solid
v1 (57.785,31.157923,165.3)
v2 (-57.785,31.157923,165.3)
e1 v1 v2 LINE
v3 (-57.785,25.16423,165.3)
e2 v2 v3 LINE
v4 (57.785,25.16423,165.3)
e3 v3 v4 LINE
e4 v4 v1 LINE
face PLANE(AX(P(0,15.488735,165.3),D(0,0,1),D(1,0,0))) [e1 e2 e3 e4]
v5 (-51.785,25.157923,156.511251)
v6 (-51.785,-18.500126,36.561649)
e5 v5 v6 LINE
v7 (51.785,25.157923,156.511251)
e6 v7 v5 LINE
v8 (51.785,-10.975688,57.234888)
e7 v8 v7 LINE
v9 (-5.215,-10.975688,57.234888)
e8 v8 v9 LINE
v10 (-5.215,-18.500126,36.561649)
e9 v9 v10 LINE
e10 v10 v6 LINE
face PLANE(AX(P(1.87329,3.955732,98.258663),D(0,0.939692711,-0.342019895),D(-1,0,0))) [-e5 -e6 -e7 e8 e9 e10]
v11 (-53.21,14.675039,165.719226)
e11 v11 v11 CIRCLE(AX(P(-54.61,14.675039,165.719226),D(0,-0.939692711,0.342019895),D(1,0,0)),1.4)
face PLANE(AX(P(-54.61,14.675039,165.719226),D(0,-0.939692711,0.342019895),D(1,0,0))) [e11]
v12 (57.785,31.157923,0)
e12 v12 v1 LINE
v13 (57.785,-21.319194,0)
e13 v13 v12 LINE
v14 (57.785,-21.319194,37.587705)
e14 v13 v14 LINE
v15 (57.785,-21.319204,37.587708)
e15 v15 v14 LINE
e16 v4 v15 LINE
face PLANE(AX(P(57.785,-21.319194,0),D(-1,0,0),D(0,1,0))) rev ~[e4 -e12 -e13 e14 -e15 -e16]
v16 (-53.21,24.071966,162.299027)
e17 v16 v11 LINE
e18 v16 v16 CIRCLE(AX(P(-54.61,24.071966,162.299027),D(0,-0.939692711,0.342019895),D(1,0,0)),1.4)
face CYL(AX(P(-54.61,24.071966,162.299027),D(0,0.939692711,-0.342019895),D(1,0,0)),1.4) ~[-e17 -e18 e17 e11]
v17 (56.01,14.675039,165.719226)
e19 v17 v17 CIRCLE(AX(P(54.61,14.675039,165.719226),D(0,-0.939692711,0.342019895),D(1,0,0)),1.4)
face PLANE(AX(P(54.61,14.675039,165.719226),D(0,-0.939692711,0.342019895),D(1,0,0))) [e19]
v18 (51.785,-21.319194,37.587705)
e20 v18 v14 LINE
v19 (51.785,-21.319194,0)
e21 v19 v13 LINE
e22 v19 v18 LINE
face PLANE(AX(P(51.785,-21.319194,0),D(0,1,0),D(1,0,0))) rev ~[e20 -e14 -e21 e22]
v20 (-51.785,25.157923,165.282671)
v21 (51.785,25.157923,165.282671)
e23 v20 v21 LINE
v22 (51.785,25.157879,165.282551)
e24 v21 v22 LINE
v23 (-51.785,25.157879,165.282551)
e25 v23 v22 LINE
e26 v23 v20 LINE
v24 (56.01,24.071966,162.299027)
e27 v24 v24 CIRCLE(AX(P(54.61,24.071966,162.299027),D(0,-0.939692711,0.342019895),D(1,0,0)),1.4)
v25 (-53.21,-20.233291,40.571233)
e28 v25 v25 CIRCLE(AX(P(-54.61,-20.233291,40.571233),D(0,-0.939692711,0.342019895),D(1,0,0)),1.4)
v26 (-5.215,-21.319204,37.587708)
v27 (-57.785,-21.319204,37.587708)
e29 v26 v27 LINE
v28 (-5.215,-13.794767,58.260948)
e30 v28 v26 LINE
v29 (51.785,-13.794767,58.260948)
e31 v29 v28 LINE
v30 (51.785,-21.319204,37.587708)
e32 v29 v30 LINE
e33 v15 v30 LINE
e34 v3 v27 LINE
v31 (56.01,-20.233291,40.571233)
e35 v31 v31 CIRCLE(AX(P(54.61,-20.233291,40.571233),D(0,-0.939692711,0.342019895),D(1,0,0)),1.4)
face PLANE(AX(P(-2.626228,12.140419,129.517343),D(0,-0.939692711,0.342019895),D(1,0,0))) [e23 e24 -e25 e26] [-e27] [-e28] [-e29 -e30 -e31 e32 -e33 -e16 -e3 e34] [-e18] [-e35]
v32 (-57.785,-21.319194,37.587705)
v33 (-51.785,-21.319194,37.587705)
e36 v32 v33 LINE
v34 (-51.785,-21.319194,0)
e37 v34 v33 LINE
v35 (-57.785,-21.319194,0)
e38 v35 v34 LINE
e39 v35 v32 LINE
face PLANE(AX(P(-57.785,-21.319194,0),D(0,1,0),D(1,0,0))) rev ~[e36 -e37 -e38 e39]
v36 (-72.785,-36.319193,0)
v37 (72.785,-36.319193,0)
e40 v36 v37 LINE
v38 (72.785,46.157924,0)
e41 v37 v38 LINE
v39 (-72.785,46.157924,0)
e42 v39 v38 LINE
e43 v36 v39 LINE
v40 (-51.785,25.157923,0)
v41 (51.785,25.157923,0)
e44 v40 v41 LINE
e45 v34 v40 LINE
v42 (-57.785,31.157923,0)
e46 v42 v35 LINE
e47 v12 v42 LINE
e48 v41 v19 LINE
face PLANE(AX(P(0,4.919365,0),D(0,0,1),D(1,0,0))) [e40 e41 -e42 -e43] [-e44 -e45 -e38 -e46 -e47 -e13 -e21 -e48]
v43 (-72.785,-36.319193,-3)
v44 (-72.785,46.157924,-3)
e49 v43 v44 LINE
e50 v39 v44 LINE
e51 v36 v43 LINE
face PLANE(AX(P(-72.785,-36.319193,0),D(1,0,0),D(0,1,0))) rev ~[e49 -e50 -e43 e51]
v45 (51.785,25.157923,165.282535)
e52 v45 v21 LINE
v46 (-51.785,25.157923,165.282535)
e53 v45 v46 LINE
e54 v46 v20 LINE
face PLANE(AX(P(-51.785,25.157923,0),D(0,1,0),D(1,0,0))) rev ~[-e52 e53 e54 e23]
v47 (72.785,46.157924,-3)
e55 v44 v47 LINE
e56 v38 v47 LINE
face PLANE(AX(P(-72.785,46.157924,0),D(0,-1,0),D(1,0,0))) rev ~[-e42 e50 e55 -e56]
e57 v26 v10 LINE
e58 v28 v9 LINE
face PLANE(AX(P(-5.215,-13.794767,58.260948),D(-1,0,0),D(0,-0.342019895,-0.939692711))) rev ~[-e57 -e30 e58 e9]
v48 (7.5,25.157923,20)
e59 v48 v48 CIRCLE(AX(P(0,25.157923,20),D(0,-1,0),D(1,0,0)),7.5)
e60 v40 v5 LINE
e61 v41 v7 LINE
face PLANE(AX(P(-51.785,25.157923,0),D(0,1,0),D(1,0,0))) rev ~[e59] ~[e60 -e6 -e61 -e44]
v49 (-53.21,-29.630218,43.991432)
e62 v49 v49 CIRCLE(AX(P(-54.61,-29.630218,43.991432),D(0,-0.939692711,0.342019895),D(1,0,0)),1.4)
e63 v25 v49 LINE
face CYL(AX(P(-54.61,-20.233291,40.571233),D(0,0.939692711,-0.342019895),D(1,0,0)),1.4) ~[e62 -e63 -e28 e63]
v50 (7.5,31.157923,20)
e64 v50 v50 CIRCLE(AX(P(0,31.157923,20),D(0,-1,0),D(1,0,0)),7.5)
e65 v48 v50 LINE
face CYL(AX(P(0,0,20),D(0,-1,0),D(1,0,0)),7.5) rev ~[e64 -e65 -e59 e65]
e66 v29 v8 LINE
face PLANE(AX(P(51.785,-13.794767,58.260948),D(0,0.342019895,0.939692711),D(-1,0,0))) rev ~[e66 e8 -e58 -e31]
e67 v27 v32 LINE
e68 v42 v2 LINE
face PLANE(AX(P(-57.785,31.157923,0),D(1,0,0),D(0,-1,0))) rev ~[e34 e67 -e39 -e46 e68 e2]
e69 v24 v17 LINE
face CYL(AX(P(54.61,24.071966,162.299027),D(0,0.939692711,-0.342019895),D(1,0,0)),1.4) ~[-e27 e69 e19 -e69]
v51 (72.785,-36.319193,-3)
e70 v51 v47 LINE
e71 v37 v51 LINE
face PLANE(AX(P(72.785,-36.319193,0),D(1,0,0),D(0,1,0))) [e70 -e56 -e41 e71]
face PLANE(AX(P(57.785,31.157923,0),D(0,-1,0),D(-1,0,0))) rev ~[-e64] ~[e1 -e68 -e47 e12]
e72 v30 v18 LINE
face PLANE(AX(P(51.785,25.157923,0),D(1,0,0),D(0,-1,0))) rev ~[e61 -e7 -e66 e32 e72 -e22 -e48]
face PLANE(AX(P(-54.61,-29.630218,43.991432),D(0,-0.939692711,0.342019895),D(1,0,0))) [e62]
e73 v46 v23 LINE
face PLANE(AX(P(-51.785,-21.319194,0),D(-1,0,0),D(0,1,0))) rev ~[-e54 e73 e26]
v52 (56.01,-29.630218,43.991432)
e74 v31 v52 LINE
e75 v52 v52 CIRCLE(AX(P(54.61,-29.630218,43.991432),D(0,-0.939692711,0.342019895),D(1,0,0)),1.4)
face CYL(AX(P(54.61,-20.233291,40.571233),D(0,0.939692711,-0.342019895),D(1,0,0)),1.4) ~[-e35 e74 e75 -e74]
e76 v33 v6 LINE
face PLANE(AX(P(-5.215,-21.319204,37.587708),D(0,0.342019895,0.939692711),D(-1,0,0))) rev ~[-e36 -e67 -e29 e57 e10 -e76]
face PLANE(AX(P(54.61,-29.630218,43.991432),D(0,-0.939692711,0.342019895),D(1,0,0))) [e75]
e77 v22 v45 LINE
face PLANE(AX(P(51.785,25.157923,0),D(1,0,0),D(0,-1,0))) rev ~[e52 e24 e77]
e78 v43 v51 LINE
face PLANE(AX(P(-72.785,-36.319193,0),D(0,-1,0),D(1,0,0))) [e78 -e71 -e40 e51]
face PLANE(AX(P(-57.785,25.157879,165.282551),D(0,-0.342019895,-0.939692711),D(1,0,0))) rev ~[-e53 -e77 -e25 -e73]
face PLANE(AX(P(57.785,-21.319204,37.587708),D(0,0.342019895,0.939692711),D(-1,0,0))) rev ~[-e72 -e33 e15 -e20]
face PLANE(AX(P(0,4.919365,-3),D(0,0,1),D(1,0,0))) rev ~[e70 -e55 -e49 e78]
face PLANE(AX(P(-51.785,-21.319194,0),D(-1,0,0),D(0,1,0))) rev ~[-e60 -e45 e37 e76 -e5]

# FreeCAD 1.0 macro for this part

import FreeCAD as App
import Part
import Sketcher

V = App.Vector
Q = App.Units.Quantity

doc = App.newDocument("Part")
body = doc.addObject("PartDesign::Body", "Body")

# Sketch on XY plane
sketch1 = body.newObject("Sketcher::SketchObject", "Sketch")
sketch1.AttachmentSupport = (doc.getObject("XY_Plane"), [""])
sketch1.MapMode = "FlatFace"
sketch1.addGeometry([
    Part.LineSegment(V(-72.785, 46.157924, 0), V(-72.785, -36.319193, 0)),
    Part.LineSegment(V(-72.785, -36.319193, 0), V(72.785, -36.319193, 0)),
    Part.LineSegment(V(72.785, -36.319193, 0), V(72.785, 46.157924, 0)),
    Part.LineSegment(V(72.785, 46.157924, 0), V(-72.785, 46.157924, 0)),
], False)
sketch1.addConstraint([
    Sketcher.Constraint("Coincident", 0, 2, 1, 1),
    Sketcher.Constraint("Coincident", 1, 2, 2, 1),
    Sketcher.Constraint("Coincident", 2, 2, 3, 1),
    Sketcher.Constraint("Coincident", 3, 2, 0, 1),
    Sketcher.Constraint("Vertical", 0),
    Sketcher.Constraint("Horizontal", 1),
    Sketcher.Constraint("Vertical", 2),
    Sketcher.Constraint("Horizontal", 3),
    Sketcher.Constraint("DistanceX", 1, 1, 1, 2, Q("145.57 mm")),
    Sketcher.Constraint("DistanceX", 0, 2, -1, 1, Q("72.785 mm")),
    Sketcher.Constraint("DistanceY", 0, 2, 0, 1, Q("82.477117 mm")),
    Sketcher.Constraint("DistanceY", 0, 2, -1, 1, Q("36.319193 mm")),
])
pad1 = body.newObject("PartDesign::Pad", "Pad")
pad1.Profile = sketch1
pad1.Length = 3
pad1.Reversed = True

# Sketch on XY plane
sketch2 = body.newObject("Sketcher::SketchObject", "Sketch001")
sketch2.AttachmentSupport = (doc.getObject("XY_Plane"), [""])
sketch2.MapMode = "FlatFace"
sketch2.addGeometry([
    Part.LineSegment(V(51.785, -21.319194, 0), V(57.785, -21.319194, 0)),  # 0
    Part.LineSegment(V(57.785, -21.319194, 0), V(57.785, 31.157923, 0)),  # 1
    Part.LineSegment(V(57.785, 31.157923, 0), V(-57.785, 31.157923, 0)),  # 2
    Part.LineSegment(V(-57.785, 31.157923, 0), V(-57.785, -21.319194, 0)),  # 3
    Part.LineSegment(V(-57.785, -21.319194, 0), V(-51.785, -21.319194, 0)),  # 4
    Part.LineSegment(V(-51.785, -21.319194, 0), V(-51.785, 25.157923, 0)),  # 5
    Part.LineSegment(V(-51.785, 25.157923, 0), V(51.785, 25.157923, 0)),  # 6
    Part.LineSegment(V(51.785, 25.157923, 0), V(51.785, -21.319194, 0)),  # 7
], False)
sketch2.addConstraint([
    Sketcher.Constraint("Coincident", 0, 2, 1, 1),
    Sketcher.Constraint("Coincident", 1, 2, 2, 1),
    Sketcher.Constraint("Coincident", 2, 2, 3, 1),
    Sketcher.Constraint("Coincident", 3, 2, 4, 1),
    Sketcher.Constraint("Coincident", 4, 2, 5, 1),
    Sketcher.Constraint("Coincident", 5, 2, 6, 1),
    Sketcher.Constraint("Coincident", 6, 2, 7, 1),
    Sketcher.Constraint("Coincident", 7, 2, 0, 1),
    Sketcher.Constraint("Horizontal", 0),
    Sketcher.Constraint("Vertical", 1),
    Sketcher.Constraint("Horizontal", 2),
    Sketcher.Constraint("Vertical", 3),
    Sketcher.Constraint("Horizontal", 4),
    Sketcher.Constraint("Vertical", 5),
    Sketcher.Constraint("Horizontal", 6),
    Sketcher.Constraint("Vertical", 7),
    Sketcher.Constraint("Symmetric", 0, 2, 3, 2, -2),
    Sketcher.Constraint("Equal", 0, 4),
    Sketcher.Constraint("DistanceX", 0, 1, 0, 2, Q("6 mm")),
    Sketcher.Constraint("DistanceY", 5, 2, 2, 2, Q("6 mm")),
    Sketcher.Constraint("DistanceX", 2, 2, 2, 1, Q("115.57 mm")),
    Sketcher.Constraint("DistanceY", 1, 1, 1, 2, Q("52.477117 mm")),
    Sketcher.Constraint("DistanceY", 0, 2, -1, 1, Q("21.319194 mm")),
])
pad2 = body.newObject("PartDesign::Pad", "Pad001")
pad2.Profile = sketch2
pad2.Length = 165.3

# Sketch on an angled plane
sketch3 = body.newObject("Sketcher::SketchObject", "Sketch002")
sketch3.Placement = App.Placement(V(0, -35, 0), App.Rotation(V(1, 0, 0), V(0, 0.342019895, 0.939692711), V(0, -0.939692711, 0.342019895), "ZXY"))
sketch3.addGeometry([
    Part.LineSegment(V(-167.036239, 275.658927, 0), V(-167.036239, 0, 0)),
    Part.LineSegment(V(-167.036239, 0, 0), V(161.783783, 0, 0)),
    Part.LineSegment(V(161.783783, 0, 0), V(161.783783, 275.658927, 0)),
    Part.LineSegment(V(161.783783, 275.658927, 0), V(-167.036239, 275.658927, 0)),
], False)
sketch3.addConstraint([
    Sketcher.Constraint("Coincident", 0, 2, 1, 1),
    Sketcher.Constraint("Coincident", 1, 2, 2, 1),
    Sketcher.Constraint("Coincident", 2, 2, 3, 1),
    Sketcher.Constraint("Coincident", 3, 2, 0, 1),
    Sketcher.Constraint("Vertical", 0),
    Sketcher.Constraint("Horizontal", 1),
    Sketcher.Constraint("Vertical", 2),
    Sketcher.Constraint("Horizontal", 3),
    Sketcher.Constraint("PointOnObject", 0, 2, -1),
    Sketcher.Constraint("DistanceX", 1, 1, 1, 2, Q("328.820023 mm")),
    Sketcher.Constraint("DistanceY", 0, 2, 0, 1, Q("275.658927 mm")),
    Sketcher.Constraint("DistanceX", 0, 2, -1, 1, Q("167.036239 mm")),
])
pocket1 = body.newObject("PartDesign::Pocket", "Pocket")
pocket1.Profile = sketch3
pocket1.Length = 200
pocket1.Reversed = True

# Sketch on an angled plane
sketch4 = body.newObject("Sketcher::SketchObject", "Sketch003")
sketch4.Placement = App.Placement(V(0, -35, 0), App.Rotation(V(1, 0, 0), V(0, 0.342019895, 0.939692711), V(0, -0.939692711, 0.342019895), "ZXY"))
sketch4.addGeometry([
    Part.LineSegment(V(57.785, 175.89, 0), V(-57.785, 175.89, 0)),  # 0
    Part.LineSegment(V(-57.785, 175.89, 0), V(-57.785, 40, 0)),  # 1
    Part.LineSegment(V(-57.785, 40, 0), V(-5.215, 40, 0)),  # 2
    Part.LineSegment(V(-5.215, 40, 0), V(-5.215, 62, 0)),  # 3
    Part.LineSegment(V(-5.215, 62, 0), V(51.785, 62, 0)),  # 4
    Part.LineSegment(V(51.785, 62, 0), V(51.785, 40, 0)),  # 5
    Part.LineSegment(V(51.785, 40, 0), V(57.785, 40, 0)),  # 6
    Part.LineSegment(V(57.785, 40, 0), V(57.785, 175.89, 0)),  # 7
], False)
sketch4.addConstraint([
    Sketcher.Constraint("Coincident", 0, 2, 1, 1),
    Sketcher.Constraint("Coincident", 1, 2, 2, 1),
    Sketcher.Constraint("Coincident", 2, 2, 3, 1),
    Sketcher.Constraint("Coincident", 3, 2, 4, 1),
    Sketcher.Constraint("Coincident", 4, 2, 5, 1),
    Sketcher.Constraint("Coincident", 5, 2, 6, 1),
    Sketcher.Constraint("Coincident", 6, 2, 7, 1),
    Sketcher.Constraint("Coincident", 7, 2, 0, 1),
    Sketcher.Constraint("Horizontal", 0),
    Sketcher.Constraint("Vertical", 1),
    Sketcher.Constraint("Horizontal", 2),
    Sketcher.Constraint("Vertical", 3),
    Sketcher.Constraint("Horizontal", 4),
    Sketcher.Constraint("Vertical", 5),
    Sketcher.Constraint("Horizontal", 6),
    Sketcher.Constraint("Vertical", 7),
    Sketcher.Constraint("Symmetric", 1, 2, 6, 2, -2),
    Sketcher.Constraint("DistanceX", 4, 1, 4, 2, Q("57 mm")),
    Sketcher.Constraint("DistanceX", 6, 1, 6, 2, Q("6 mm")),
    Sketcher.Constraint("DistanceY", 3, 1, 3, 2, Q("22 mm")),
    Sketcher.Constraint("DistanceY", -1, 1, 1, 2, Q("40 mm")),
    Sketcher.Constraint("DistanceX", 0, 2, 0, 1, Q("115.57 mm")),
    Sketcher.Constraint("DistanceY", 1, 2, 1, 1, Q("135.89 mm")),
])
pad3 = body.newObject("PartDesign::Pad", "Pad002")
pad3.Profile = sketch4
pad3.Length = 3
pad3.Reversed = True

# Sketch on an angled plane
sketch5 = body.newObject("Sketcher::SketchObject", "Sketch004")
sketch5.Placement = App.Placement(V(0, -35, 0), App.Rotation(V(1, 0, 0), V(0, 0.342019895, 0.939692711), V(0, -0.939692711, 0.342019895), "ZXY"))
sketch5.addGeometry([
    Part.Circle(V(-54.61, 172.715, 0), V(0, 0, 1), 1.4),
    Part.Circle(V(54.61, 172.715, 0), V(0, 0, 1), 1.4),
    Part.Circle(V(54.61, 43.175, 0), V(0, 0, 1), 1.4),
    Part.Circle(V(-54.61, 43.175, 0), V(0, 0, 1), 1.4),
], False)
sketch5.addConstraint([
    Sketcher.Constraint("Equal", 0, 1),
    Sketcher.Constraint("Equal", 1, 2),
    Sketcher.Constraint("Equal", 2, 3),
    Sketcher.Constraint("Symmetric", 0, 3, 1, 3, -2),
    Sketcher.Constraint("Symmetric", 2, 3, 3, 3, -2),
    Sketcher.Constraint("Vertical", 1, 3, 2, 3),
    Sketcher.Constraint("Diameter", 0, Q("2.8 mm")),
    Sketcher.Constraint("DistanceX", 0, 3, -1, 1, Q("54.61 mm")),
    Sketcher.Constraint("DistanceY", 2, 3, 1, 3, Q("129.54 mm")),
    Sketcher.Constraint("DistanceY", -1, 1, 0, 3, Q("172.715 mm")),
])
pad4 = body.newObject("PartDesign::Pad", "Pad003")
pad4.Profile = sketch5
pad4.Length = 10

# Sketch on XZ plane
sketch6 = body.newObject("Sketcher::SketchObject", "Sketch005")
sketch6.AttachmentSupport = (doc.getObject("XZ_Plane"), [""])
sketch6.MapMode = "FlatFace"
sketch6.addGeometry(Part.Circle(V(0, 20, 0), V(0, 0, 1), 7.5), False)
sketch6.addConstraint([
    Sketcher.Constraint("PointOnObject", 0, 3, -2),
    Sketcher.Constraint("Diameter", 0, Q("15 mm")),
    Sketcher.Constraint("DistanceY", -1, 1, 0, 3, Q("20 mm")),
])
pocket2 = body.newObject("PartDesign::Pocket", "Pocket001")
pocket2.Profile = sketch6
pocket2.Type = "ThroughAll"

doc.recompute()
